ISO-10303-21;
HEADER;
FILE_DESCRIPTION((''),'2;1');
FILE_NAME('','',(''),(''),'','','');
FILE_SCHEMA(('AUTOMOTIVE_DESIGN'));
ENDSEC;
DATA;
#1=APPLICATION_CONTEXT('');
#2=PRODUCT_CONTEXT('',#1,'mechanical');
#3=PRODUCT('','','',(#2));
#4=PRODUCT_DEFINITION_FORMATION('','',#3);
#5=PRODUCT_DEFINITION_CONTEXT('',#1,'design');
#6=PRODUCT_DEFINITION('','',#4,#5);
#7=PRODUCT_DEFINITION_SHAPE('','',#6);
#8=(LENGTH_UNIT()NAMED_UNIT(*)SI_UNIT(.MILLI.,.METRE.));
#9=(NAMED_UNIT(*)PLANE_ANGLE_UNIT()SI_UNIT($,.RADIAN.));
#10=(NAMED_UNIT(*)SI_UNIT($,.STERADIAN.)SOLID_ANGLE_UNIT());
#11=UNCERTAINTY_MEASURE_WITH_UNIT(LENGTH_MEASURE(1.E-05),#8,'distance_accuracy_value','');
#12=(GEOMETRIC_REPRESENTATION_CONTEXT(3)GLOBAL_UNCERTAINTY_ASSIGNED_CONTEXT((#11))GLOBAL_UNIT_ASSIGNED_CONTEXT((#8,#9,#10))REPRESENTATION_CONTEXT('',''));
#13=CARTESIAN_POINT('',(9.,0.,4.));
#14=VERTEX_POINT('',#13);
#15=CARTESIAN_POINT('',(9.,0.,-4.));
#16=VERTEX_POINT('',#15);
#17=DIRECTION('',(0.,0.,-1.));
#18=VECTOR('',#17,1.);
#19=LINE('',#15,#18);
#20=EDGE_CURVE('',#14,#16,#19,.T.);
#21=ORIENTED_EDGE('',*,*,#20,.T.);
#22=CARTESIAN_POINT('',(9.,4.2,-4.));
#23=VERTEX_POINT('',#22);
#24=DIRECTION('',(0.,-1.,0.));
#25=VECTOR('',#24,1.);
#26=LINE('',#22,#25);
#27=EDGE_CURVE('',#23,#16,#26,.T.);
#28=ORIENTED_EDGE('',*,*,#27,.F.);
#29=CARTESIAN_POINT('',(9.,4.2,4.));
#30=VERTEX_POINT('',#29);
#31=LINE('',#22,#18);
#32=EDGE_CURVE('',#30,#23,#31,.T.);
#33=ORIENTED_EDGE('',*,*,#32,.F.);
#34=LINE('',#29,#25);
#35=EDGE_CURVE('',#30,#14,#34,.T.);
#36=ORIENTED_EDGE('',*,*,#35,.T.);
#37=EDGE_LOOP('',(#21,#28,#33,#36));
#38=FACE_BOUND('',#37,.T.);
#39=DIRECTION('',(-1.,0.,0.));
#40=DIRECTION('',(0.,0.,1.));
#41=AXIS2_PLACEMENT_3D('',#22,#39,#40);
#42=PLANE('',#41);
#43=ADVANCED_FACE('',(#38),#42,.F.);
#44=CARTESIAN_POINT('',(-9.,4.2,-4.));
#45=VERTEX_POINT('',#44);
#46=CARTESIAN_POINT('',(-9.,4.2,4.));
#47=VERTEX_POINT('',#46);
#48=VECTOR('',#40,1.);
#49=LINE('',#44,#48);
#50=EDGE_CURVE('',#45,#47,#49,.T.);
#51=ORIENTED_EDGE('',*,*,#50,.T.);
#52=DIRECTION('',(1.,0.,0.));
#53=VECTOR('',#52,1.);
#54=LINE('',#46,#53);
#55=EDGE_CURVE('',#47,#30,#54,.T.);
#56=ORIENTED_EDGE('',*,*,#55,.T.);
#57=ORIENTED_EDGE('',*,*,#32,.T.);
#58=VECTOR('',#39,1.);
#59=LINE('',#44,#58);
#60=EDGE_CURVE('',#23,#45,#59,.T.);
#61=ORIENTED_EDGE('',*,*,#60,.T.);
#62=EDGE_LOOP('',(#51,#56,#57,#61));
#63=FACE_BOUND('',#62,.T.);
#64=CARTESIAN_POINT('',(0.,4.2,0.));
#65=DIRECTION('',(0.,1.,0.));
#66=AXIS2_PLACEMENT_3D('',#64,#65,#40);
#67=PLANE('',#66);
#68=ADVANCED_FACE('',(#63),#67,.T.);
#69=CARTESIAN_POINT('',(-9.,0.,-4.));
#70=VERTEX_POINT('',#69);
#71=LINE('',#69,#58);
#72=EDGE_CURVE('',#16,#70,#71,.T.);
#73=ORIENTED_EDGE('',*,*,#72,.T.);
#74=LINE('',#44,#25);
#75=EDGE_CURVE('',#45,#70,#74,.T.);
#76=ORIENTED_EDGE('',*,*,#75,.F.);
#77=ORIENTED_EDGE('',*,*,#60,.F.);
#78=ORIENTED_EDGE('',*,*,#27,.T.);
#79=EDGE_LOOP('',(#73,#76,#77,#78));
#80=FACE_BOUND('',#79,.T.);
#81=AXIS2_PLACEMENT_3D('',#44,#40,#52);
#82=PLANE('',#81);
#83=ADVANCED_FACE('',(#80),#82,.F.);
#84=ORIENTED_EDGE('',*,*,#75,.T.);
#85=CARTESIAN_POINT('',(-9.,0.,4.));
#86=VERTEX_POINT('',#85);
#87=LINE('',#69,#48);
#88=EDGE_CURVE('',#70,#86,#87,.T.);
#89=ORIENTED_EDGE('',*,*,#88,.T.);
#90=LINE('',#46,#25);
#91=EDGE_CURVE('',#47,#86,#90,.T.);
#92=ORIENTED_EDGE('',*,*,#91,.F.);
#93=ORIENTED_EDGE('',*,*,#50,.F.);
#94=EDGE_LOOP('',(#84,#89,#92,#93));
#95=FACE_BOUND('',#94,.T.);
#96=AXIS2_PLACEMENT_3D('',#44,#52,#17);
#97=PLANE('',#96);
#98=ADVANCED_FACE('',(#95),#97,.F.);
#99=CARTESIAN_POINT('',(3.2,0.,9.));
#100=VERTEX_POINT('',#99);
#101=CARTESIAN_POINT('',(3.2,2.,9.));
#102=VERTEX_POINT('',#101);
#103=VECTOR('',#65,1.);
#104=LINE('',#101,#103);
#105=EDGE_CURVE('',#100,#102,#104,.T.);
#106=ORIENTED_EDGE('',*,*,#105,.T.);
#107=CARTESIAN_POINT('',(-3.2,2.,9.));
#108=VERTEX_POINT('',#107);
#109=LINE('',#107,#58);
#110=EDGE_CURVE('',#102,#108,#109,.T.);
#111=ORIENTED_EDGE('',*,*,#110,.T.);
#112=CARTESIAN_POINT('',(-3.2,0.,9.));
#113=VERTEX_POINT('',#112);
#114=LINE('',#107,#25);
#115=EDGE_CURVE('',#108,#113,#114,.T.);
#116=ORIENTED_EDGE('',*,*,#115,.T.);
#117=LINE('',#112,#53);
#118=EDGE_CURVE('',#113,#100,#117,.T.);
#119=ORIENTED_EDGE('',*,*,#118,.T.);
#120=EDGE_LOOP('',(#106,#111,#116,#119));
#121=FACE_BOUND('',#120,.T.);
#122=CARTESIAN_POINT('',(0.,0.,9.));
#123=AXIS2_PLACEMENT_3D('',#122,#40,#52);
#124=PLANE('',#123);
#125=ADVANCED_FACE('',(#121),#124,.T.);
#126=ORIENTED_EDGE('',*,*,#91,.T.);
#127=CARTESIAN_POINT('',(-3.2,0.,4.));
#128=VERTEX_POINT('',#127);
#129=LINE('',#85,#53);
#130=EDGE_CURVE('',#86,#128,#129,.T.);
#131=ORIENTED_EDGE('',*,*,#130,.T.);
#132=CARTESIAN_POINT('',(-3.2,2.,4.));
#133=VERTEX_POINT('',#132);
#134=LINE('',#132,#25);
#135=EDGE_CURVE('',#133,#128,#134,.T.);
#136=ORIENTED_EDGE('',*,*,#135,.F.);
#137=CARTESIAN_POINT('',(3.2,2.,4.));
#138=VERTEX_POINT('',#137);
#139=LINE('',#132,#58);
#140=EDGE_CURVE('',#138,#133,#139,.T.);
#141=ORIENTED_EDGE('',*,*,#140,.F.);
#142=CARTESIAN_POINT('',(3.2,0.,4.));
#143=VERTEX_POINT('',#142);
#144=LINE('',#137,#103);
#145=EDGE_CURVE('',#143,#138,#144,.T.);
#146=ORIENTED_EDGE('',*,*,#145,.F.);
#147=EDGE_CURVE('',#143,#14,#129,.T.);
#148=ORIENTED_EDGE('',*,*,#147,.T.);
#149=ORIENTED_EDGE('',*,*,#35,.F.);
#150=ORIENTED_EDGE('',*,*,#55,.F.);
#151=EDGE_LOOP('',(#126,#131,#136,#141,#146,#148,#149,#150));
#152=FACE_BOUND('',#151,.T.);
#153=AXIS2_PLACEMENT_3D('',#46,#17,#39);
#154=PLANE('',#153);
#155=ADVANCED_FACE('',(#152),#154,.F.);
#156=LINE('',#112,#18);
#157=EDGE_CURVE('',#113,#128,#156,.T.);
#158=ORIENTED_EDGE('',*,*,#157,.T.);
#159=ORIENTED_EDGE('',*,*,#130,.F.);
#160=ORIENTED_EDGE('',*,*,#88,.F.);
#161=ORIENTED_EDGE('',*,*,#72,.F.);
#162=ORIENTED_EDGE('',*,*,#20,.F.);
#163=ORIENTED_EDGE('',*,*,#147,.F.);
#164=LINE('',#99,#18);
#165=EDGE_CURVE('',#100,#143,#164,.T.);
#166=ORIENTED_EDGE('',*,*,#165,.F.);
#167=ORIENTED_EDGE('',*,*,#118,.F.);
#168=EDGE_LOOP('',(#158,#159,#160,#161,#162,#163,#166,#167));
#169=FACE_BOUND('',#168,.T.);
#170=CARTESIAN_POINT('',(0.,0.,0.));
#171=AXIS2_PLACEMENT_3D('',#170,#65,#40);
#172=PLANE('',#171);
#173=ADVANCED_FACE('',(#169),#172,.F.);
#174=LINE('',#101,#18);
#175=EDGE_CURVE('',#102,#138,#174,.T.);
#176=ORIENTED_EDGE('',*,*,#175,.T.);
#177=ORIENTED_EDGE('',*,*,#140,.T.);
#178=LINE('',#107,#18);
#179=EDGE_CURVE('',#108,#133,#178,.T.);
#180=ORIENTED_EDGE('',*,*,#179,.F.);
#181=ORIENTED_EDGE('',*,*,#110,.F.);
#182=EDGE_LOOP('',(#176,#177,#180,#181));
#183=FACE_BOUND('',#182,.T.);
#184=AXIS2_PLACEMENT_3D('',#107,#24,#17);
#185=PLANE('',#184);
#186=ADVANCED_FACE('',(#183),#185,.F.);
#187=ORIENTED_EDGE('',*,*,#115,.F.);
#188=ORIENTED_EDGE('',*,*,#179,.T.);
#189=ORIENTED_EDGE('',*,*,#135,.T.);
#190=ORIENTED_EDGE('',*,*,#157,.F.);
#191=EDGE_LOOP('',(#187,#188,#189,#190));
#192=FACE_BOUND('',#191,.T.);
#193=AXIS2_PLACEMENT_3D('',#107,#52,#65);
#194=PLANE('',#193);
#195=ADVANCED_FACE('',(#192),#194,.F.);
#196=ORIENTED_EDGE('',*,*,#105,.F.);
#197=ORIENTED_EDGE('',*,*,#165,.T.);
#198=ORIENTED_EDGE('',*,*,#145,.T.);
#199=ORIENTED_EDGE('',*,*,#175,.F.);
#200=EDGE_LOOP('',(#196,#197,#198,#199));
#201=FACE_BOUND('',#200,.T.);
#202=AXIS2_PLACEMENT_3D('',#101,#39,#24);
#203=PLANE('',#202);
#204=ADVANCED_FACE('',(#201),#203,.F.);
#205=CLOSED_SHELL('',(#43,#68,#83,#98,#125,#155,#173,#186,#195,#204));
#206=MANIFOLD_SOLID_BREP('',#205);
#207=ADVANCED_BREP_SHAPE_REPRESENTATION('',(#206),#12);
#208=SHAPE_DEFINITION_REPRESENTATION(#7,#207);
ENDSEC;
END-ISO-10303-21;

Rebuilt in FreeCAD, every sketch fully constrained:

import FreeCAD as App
import Part
import Sketcher
Q = App.Units.Quantity

doc = App.newDocument("Part")
params = doc.addObject("Spreadsheet::Sheet", "Params")
for row, (alias, value) in enumerate([
    ("sketch1_width", "18 mm"),
    ("sketch1_height", "8 mm"),
    ("pad1_length", "4.2 mm"),
    ("sketch2_height", "2 mm"),
    ("sketch2_width", "6.4 mm"),
    ("pad2_length", "5 mm"),
], start=1):
    params.set(f"A{row}", alias)
    params.set(f"B{row}", "=" + value)
    params.setAlias(f"B{row}", alias)

body = doc.addObject("PartDesign::Body", "Body")

sketch1 = body.newObject("Sketcher::SketchObject", "Sketch")
sketch1.AttachmentSupport = (doc.getObject("XZ_Plane"), [""])
sketch1.MapMode = "FlatFace"
sketch1.addGeometry([
    Part.LineSegment(App.Vector(-9, -4, 0), App.Vector(-9, 4, 0)),
    Part.LineSegment(App.Vector(-9, 4, 0), App.Vector(9, 4, 0)),
    Part.LineSegment(App.Vector(9, 4, 0), App.Vector(9, -4, 0)),
    Part.LineSegment(App.Vector(9, -4, 0), App.Vector(-9, -4, 0)),
], False)
sketch1.addConstraint([
    Sketcher.Constraint("Coincident", 0, 2, 1, 1),
    Sketcher.Constraint("Coincident", 1, 2, 2, 1),
    Sketcher.Constraint("Coincident", 2, 2, 3, 1),
    Sketcher.Constraint("Coincident", 3, 2, 0, 1),
    Sketcher.Constraint("Vertical", 0),
    Sketcher.Constraint("Horizontal", 1),
    Sketcher.Constraint("Vertical", 2),
    Sketcher.Constraint("Horizontal", 3),
    Sketcher.Constraint("Symmetric", 0, 2, 2, 2, -1, 1),
    Sketcher.Constraint("DistanceX", 1, 1, 1, 2, Q("18 mm")),
    Sketcher.Constraint("DistanceY", 0, 1, 0, 2, Q("8 mm")),
])
sketch1.setExpression("Constraints[9]", "Params.sketch1_width")
sketch1.setExpression("Constraints[10]", "Params.sketch1_height")
pad1 = body.newObject("PartDesign::Pad", "Pad")
pad1.Profile = sketch1
pad1.setExpression("Length", "Params.pad1_length")
pad1.Reversed = True

sketch2 = body.newObject("Sketcher::SketchObject", "Sketch001")
sketch2.AttachmentSupport = (doc.getObject("XY_Plane"), [""])
sketch2.MapMode = "FlatFace"
sketch2.AttachmentOffset = App.Placement(App.Vector(0, 0, 4), App.Rotation())
sketch2.addGeometry([
    Part.LineSegment(App.Vector(-3.2, 2, 0), App.Vector(-3.2, 0, 0)),
    Part.LineSegment(App.Vector(-3.2, 0, 0), App.Vector(3.2, 0, 0)),
    Part.LineSegment(App.Vector(3.2, 0, 0), App.Vector(3.2, 2, 0)),
    Part.LineSegment(App.Vector(3.2, 2, 0), App.Vector(-3.2, 2, 0)),
], False)
sketch2.addConstraint([
    Sketcher.Constraint("Coincident", 0, 2, 1, 1),
    Sketcher.Constraint("Coincident", 1, 2, 2, 1),
    Sketcher.Constraint("Coincident", 2, 2, 3, 1),
    Sketcher.Constraint("Coincident", 3, 2, 0, 1),
    Sketcher.Constraint("Vertical", 0),
    Sketcher.Constraint("Horizontal", 1),
    Sketcher.Constraint("Vertical", 2),
    Sketcher.Constraint("Horizontal", 3),
    Sketcher.Constraint("Symmetric", 0, 2, 1, 2, -1, 1),
    Sketcher.Constraint("DistanceY", 0, 2, 0, 1, Q("2 mm")),
    Sketcher.Constraint("DistanceX", 1, 1, 1, 2, Q("6.4 mm")),
])
sketch2.setExpression("Constraints[9]", "Params.sketch2_height")
sketch2.setExpression("Constraints[10]", "Params.sketch2_width")
pad2 = body.newObject("PartDesign::Pad", "Pad001")
pad2.Profile = sketch2
pad2.setExpression("Length", "Params.pad2_length")

doc.recompute()
